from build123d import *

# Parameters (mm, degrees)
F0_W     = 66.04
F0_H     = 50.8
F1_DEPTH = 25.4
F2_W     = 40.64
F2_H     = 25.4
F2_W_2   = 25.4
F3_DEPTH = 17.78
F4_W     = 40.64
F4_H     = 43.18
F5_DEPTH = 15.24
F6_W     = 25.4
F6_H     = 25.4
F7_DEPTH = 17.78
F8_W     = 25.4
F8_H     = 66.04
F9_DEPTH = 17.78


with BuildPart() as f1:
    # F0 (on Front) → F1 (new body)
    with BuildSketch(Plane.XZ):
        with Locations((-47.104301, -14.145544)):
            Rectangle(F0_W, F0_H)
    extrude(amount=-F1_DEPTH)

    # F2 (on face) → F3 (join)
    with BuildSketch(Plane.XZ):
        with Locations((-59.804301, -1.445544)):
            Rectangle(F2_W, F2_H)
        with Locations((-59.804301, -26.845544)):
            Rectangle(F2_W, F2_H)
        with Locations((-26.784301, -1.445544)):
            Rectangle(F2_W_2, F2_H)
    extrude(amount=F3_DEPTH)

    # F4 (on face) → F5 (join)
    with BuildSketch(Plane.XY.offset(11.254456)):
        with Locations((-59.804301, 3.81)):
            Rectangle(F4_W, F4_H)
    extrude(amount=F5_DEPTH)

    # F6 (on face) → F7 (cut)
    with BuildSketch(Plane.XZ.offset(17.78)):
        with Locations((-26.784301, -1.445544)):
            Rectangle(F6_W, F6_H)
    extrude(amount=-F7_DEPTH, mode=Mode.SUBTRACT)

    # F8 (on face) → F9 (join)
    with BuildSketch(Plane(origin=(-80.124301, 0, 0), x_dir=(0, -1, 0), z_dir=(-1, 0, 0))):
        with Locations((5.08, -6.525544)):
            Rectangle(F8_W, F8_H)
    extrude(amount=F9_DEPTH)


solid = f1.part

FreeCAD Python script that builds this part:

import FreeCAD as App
import Part
import Sketcher
Q = App.Units.Quantity

doc = App.newDocument("Part")
body = doc.addObject("PartDesign::Body", "Body")

# Sketch on XZ plane
sketch1 = body.newObject("Sketcher::SketchObject", "Sketch")
sketch1.AttachmentSupport = (doc.getObject("XZ_Plane"), [""])
sketch1.MapMode = "FlatFace"
sketch1.addGeometry([
    Part.LineSegment(App.Vector(-80, 11, 0), App.Vector(-80, -40, 0)),
    Part.LineSegment(App.Vector(-80, -40, 0), App.Vector(-14, -40, 0)),
    Part.LineSegment(App.Vector(-14, -40, 0), App.Vector(-14, 11, 0)),
    Part.LineSegment(App.Vector(-14, 11, 0), App.Vector(-80, 11, 0)),
], False)
sketch1.addConstraint([
    Sketcher.Constraint("Coincident", 0, 2, 1, 1),
    Sketcher.Constraint("Coincident", 1, 2, 2, 1),
    Sketcher.Constraint("Coincident", 2, 2, 3, 1),
    Sketcher.Constraint("Coincident", 3, 2, 0, 1),
    Sketcher.Constraint("Vertical", 0),
    Sketcher.Constraint("Horizontal", 1),
    Sketcher.Constraint("Vertical", 2),
    Sketcher.Constraint("Horizontal", 3),
    Sketcher.Constraint("DistanceY", 0, 2, 0, 1, Q("2 in")),
    Sketcher.Constraint("DistanceX", 1, 1, 1, 2, Q("2.6 in")),
    Sketcher.Constraint("DistanceX", 0, 2, -1, 1, Q("3.1545 in")),
    Sketcher.Constraint("DistanceY", 0, 2, -1, 1, 39.545544),
])
pad1 = body.newObject("PartDesign::Pad", "Pad")
pad1.Profile = sketch1
pad1.Length = Q("1 in")
pad1.Reversed = True

# Sketch on XZ plane
sketch2 = body.newObject("Sketcher::SketchObject", "Sketch001")
sketch2.AttachmentSupport = (doc.getObject("XZ_Plane"), [""])
sketch2.MapMode = "FlatFace"
sketch2.addGeometry([
    Part.LineSegment(App.Vector(-80, 11, 0), App.Vector(-80, -40, 0)),  # 0
    Part.LineSegment(App.Vector(-80, -40, 0), App.Vector(-39, -40, 0)),  # 1
    Part.LineSegment(App.Vector(-39, -40, 0), App.Vector(-39, -14, 0)),  # 2
    Part.LineSegment(App.Vector(-39, -14, 0), App.Vector(-14, -14, 0)),  # 3
    Part.LineSegment(App.Vector(-14, -14, 0), App.Vector(-14, 11, 0)),  # 4
    Part.LineSegment(App.Vector(-14, 11, 0), App.Vector(-80, 11, 0)),  # 5
], False)
sketch2.addConstraint([
    Sketcher.Constraint("Coincident", 0, 2, 1, 1),
    Sketcher.Constraint("Coincident", 1, 2, 2, 1),
    Sketcher.Constraint("Coincident", 2, 2, 3, 1),
    Sketcher.Constraint("Coincident", 3, 2, 4, 1),
    Sketcher.Constraint("Coincident", 4, 2, 5, 1),
    Sketcher.Constraint("Coincident", 5, 2, 0, 1),
    Sketcher.Constraint("Vertical", 0),
    Sketcher.Constraint("Horizontal", 1),
    Sketcher.Constraint("Vertical", 2),
    Sketcher.Constraint("Horizontal", 3),
    Sketcher.Constraint("Vertical", 4),
    Sketcher.Constraint("Horizontal", 5),
    Sketcher.Constraint("Equal", 3, 2),
    Sketcher.Constraint("Equal", 2, 4),
    Sketcher.Constraint("DistanceX", 3, 1, 3, 2, Q("1 in")),
    Sketcher.Constraint("DistanceX", 1, 1, 1, 2, Q("1.6 in")),
    Sketcher.Constraint("DistanceX", 0, 2, -1, 1, Q("3.1545 in")),
    Sketcher.Constraint("DistanceY", 0, 2, -1, 1, 39.545544),
])
pad2 = body.newObject("PartDesign::Pad", "Pad001")
pad2.Profile = sketch2
pad2.Length = Q("0.7 in")

# Sketch on XY plane
sketch3 = body.newObject("Sketcher::SketchObject", "Sketch002")
sketch3.AttachmentSupport = (doc.getObject("XY_Plane"), [""])
sketch3.MapMode = "FlatFace"
sketch3.AttachmentOffset = App.Placement(App.Vector(0, 0, 11.254456), App.Rotation())
sketch3.addGeometry([
    Part.LineSegment(App.Vector(-80, 25, 0), App.Vector(-80, -18, 0)),
    Part.LineSegment(App.Vector(-80, -18, 0), App.Vector(-39, -18, 0)),
    Part.LineSegment(App.Vector(-39, -18, 0), App.Vector(-39, 25, 0)),
    Part.LineSegment(App.Vector(-39, 25, 0), App.Vector(-80, 25, 0)),
], False)
sketch3.addConstraint([
    Sketcher.Constraint("Coincident", 0, 2, 1, 1),
    Sketcher.Constraint("Coincident", 1, 2, 2, 1),
    Sketcher.Constraint("Coincident", 2, 2, 3, 1),
    Sketcher.Constraint("Coincident", 3, 2, 0, 1),
    Sketcher.Constraint("Vertical", 0),
    Sketcher.Constraint("Horizontal", 1),
    Sketcher.Constraint("Vertical", 2),
    Sketcher.Constraint("Horizontal", 3),
    Sketcher.Constraint("DistanceX", 1, 1, 1, 2, Q("1.6 in")),
    Sketcher.Constraint("DistanceY", 0, 2, 0, 1, Q("1.7 in")),
    Sketcher.Constraint("DistanceY", -1, 1, 2, 2, Q("1 in")),
    Sketcher.Constraint("DistanceX", 0, 2, -1, 1, Q("3.1545 in")),
])
pad3 = body.newObject("PartDesign::Pad", "Pad002")
pad3.Profile = sketch3
pad3.Length = Q("0.6 in")

# Sketch on XZ plane
sketch4 = body.newObject("Sketcher::SketchObject", "Sketch003")
sketch4.AttachmentSupport = (doc.getObject("XZ_Plane"), [""])
sketch4.MapMode = "FlatFace"
sketch4.AttachmentOffset = App.Placement(App.Vector(0, 0, 0.7 * 25.4), App.Rotation())
sketch4.addGeometry([
    Part.LineSegment(App.Vector(-39, 11, 0), App.Vector(-39, -14, 0)),
    Part.LineSegment(App.Vector(-39, -14, 0), App.Vector(-14, -14, 0)),
    Part.LineSegment(App.Vector(-14, -14, 0), App.Vector(-14, 11, 0)),
    Part.LineSegment(App.Vector(-14, 11, 0), App.Vector(-39, 11, 0)),
], False)
sketch4.addConstraint([
    Sketcher.Constraint("Coincident", 0, 2, 1, 1),
    Sketcher.Constraint("Coincident", 1, 2, 2, 1),
    Sketcher.Constraint("Coincident", 2, 2, 3, 1),
    Sketcher.Constraint("Coincident", 3, 2, 0, 1),
    Sketcher.Constraint("Vertical", 0),
    Sketcher.Constraint("Horizontal", 1),
    Sketcher.Constraint("Vertical", 2),
    Sketcher.Constraint("Horizontal", 3),
    Sketcher.Constraint("Equal", 3, 0),
    Sketcher.Constraint("DistanceX", 1, 1, 1, 2, Q("1 in")),
    Sketcher.Constraint("DistanceX", 0, 2, -1, 1, Q("1.5545 in")),
    Sketcher.Constraint("DistanceY", 0, 2, -1, 1, 14.145544),
])
pocket1 = body.newObject("PartDesign::Pocket", "Pocket")
pocket1.Profile = sketch4
pocket1.Length = Q("0.7 in")

# Sketch on YZ plane
sketch5 = body.newObject("Sketcher::SketchObject", "Sketch004")
sketch5.AttachmentSupport = (doc.getObject("YZ_Plane"), [""])
sketch5.MapMode = "FlatFace"
sketch5.AttachmentOffset = App.Placement(App.Vector(0, 0, -3.1545 * 25.4), App.Rotation())
sketch5.addGeometry([
    Part.LineSegment(App.Vector(8, 26, 0), App.Vector(8, -40, 0)),
    Part.LineSegment(App.Vector(8, -40, 0), App.Vector(-18, -40, 0)),
    Part.LineSegment(App.Vector(-18, -40, 0), App.Vector(-18, 26, 0)),
    Part.LineSegment(App.Vector(-18, 26, 0), App.Vector(8, 26, 0)),
], False)
sketch5.addConstraint([
    Sketcher.Constraint("Coincident", 0, 2, 1, 1),
    Sketcher.Constraint("Coincident", 1, 2, 2, 1),
    Sketcher.Constraint("Coincident", 2, 2, 3, 1),
    Sketcher.Constraint("Coincident", 3, 2, 0, 1),
    Sketcher.Constraint("Vertical", 0),
    Sketcher.Constraint("Horizontal", 1),
    Sketcher.Constraint("Vertical", 2),
    Sketcher.Constraint("Horizontal", 3),
    Sketcher.Constraint("DistanceX", 1, 2, 1, 1, Q("1 in")),
    Sketcher.Constraint("DistanceY", 0, 2, 0, 1, Q("2.6 in")),
    Sketcher.Constraint("DistanceX", -1, 1, 0, 2, Q("0.3 in")),
    Sketcher.Constraint("DistanceY", 0, 2, -1, 1, 39.545544),
])
pad4 = body.newObject("PartDesign::Pad", "Pad003")
pad4.Profile = sketch5
pad4.Length = Q("0.7 in")
pad4.Reversed = True

doc.recompute()
